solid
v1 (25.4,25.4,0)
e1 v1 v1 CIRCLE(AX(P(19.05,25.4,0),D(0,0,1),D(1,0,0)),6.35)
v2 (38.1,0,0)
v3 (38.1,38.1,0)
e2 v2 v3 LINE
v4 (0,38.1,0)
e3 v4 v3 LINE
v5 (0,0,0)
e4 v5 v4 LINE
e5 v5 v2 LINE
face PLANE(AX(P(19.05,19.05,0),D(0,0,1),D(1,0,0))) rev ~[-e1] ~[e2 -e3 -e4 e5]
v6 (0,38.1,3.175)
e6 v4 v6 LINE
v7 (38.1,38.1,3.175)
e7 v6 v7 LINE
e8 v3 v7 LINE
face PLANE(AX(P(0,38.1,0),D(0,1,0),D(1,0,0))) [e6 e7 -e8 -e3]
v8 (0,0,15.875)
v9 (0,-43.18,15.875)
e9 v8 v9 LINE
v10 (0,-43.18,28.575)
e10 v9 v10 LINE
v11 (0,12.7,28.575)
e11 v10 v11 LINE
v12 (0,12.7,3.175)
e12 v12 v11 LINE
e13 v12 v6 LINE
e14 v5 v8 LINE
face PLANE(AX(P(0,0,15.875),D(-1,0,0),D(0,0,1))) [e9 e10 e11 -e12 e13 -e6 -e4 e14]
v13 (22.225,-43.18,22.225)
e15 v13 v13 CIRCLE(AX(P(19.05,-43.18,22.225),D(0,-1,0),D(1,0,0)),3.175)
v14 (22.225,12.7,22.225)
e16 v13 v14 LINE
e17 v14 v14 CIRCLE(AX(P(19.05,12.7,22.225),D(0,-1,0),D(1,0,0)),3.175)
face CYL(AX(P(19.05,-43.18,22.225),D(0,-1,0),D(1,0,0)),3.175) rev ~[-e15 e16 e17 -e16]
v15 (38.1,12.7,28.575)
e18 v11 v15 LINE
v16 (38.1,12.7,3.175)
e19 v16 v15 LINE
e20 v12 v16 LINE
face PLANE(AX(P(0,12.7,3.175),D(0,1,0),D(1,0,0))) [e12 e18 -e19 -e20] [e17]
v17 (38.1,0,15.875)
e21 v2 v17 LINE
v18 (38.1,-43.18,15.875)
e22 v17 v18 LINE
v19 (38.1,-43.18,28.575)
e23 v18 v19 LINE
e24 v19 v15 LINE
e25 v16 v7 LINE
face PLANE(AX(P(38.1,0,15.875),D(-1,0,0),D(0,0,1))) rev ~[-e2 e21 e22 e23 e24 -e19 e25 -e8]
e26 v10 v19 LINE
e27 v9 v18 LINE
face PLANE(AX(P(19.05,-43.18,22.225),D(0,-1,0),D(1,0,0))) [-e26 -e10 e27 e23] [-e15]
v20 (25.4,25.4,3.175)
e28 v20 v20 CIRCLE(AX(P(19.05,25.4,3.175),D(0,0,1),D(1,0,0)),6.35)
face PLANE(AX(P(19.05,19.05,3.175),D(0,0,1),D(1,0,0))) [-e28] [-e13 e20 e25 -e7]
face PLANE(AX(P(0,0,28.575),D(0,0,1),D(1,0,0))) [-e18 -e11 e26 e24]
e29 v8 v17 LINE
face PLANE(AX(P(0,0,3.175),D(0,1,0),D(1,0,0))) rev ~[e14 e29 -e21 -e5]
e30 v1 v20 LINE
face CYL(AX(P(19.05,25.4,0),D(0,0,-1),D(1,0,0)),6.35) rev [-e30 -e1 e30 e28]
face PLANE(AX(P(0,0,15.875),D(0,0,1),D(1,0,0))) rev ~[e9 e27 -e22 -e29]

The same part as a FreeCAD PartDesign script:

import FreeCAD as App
import Part
import Sketcher
from FreeCAD import Vector
Q = App.Units.Quantity

doc = App.newDocument("Part")
params = doc.addObject("Spreadsheet::Sheet", "Params")
for row, (alias, value) in enumerate([
    ("sketch1_diameter", "0.5 in"),
    ("sketch1_width", "1.5 in"),
    ("pad1_length", "0.125 in"),
    ("sketch2_width", "1.5 in"),
    ("sketch2_height", "0.5 in"),
    ("pad2_length", "1 in"),
    ("sketch3_width", "1.5 in"),
    ("sketch3_height", "0.5 in"),
    ("pad3_length", "1.7 in"),
    ("sketch4_diameter", "0.25 in"),
], start=1):
    params.set(f"A{row}", alias)
    params.set(f"B{row}", "=" + value)
    params.setAlias(f"B{row}", alias)

body = doc.addObject("PartDesign::Body", "Body")

# Sketch on XY plane
sketch1 = doc.addObject("Sketcher::SketchObject", "Sketch")
body.addObject(sketch1)
sketch1.AttachmentSupport = (doc.XY_Plane, [""])
sketch1.MapMode = "FlatFace"
sketch1.addGeometry([
    Part.LineSegment(Vector(0, 38, 0), Vector(0, 0, 0)),  # 0
    Part.LineSegment(Vector(0, 0, 0), Vector(38, 0, 0)),  # 1
    Part.LineSegment(Vector(38, 0, 0), Vector(38, 38, 0)),  # 2
    Part.LineSegment(Vector(38, 38, 0), Vector(0, 38, 0)),  # 3
    Part.Circle(Vector(19, 25, 0), Vector(0, 0, 1), 6),  # 4
], False)
sketch1.addConstraint([
    Sketcher.Constraint("Coincident", 0, 2, 1, 1),
    Sketcher.Constraint("Coincident", 1, 2, 2, 1),
    Sketcher.Constraint("Coincident", 2, 2, 3, 1),
    Sketcher.Constraint("Coincident", 3, 2, 0, 1),
    Sketcher.Constraint("Vertical", 0),
    Sketcher.Constraint("Horizontal", 1),
    Sketcher.Constraint("Vertical", 2),
    Sketcher.Constraint("Horizontal", 3),
    Sketcher.Constraint("Coincident", 0, 2, -1, 1),
    Sketcher.Constraint("Equal", 3, 0),
    Sketcher.Constraint("Diameter", 4, Q("0.5 in")),
    Sketcher.Constraint("DistanceX", 1, 1, 1, 2, Q("1.5 in")),
    Sketcher.Constraint("DistanceY", -1, 1, 4, 3, Q("1 in")),
    Sketcher.Constraint("DistanceX", -1, 1, 4, 3, Q("0.75 in")),
])
sketch1.setExpression("Constraints[10]", "Params.sketch1_diameter")
sketch1.setExpression("Constraints[11]", "Params.sketch1_width")
pad1 = doc.addObject("PartDesign::Pad", "Pad")
body.addObject(pad1)
pad1.Profile = sketch1
pad1.setExpression("Length", "Params.pad1_length")

# Sketch on XY plane
sketch2 = doc.addObject("Sketcher::SketchObject", "Sketch001")
body.addObject(sketch2)
sketch2.AttachmentSupport = (doc.XY_Plane, [""])
sketch2.MapMode = "FlatFace"
sketch2.AttachmentOffset = App.Placement(Vector(0, 0, 0.125 * 25.4), App.Rotation())
sketch2.addGeometry([
    Part.LineSegment(Vector(0, 13, 0), Vector(0, 0, 0)),
    Part.LineSegment(Vector(0, 0, 0), Vector(38, 0, 0)),
    Part.LineSegment(Vector(38, 0, 0), Vector(38, 13, 0)),
    Part.LineSegment(Vector(38, 13, 0), Vector(0, 13, 0)),
], False)
sketch2.addConstraint([
    Sketcher.Constraint("Coincident", 0, 2, 1, 1),
    Sketcher.Constraint("Coincident", 1, 2, 2, 1),
    Sketcher.Constraint("Coincident", 2, 2, 3, 1),
    Sketcher.Constraint("Coincident", 3, 2, 0, 1),
    Sketcher.Constraint("Vertical", 0),
    Sketcher.Constraint("Horizontal", 1),
    Sketcher.Constraint("Vertical", 2),
    Sketcher.Constraint("Horizontal", 3),
    Sketcher.Constraint("Coincident", 0, 2, -1, 1),
    Sketcher.Constraint("DistanceX", 1, 1, 1, 2, Q("1.5 in")),
    Sketcher.Constraint("DistanceY", 0, 2, 0, 1, Q("0.5 in")),
])
sketch2.setExpression("Constraints[9]", "Params.sketch2_width")
sketch2.setExpression("Constraints[10]", "Params.sketch2_height")
pad2 = doc.addObject("PartDesign::Pad", "Pad001")
body.addObject(pad2)
pad2.Profile = sketch2
pad2.setExpression("Length", "Params.pad2_length")

# Sketch on XZ plane
sketch3 = doc.addObject("Sketcher::SketchObject", "Sketch002")
body.addObject(sketch3)
sketch3.AttachmentSupport = (doc.XZ_Plane, [""])
sketch3.MapMode = "FlatFace"
sketch3.addGeometry([
    Part.LineSegment(Vector(0, 29, 0), Vector(0, 16, 0)),
    Part.LineSegment(Vector(0, 16, 0), Vector(38, 16, 0)),
    Part.LineSegment(Vector(38, 16, 0), Vector(38, 29, 0)),
    Part.LineSegment(Vector(38, 29, 0), Vector(0, 29, 0)),
], False)
sketch3.addConstraint([
    Sketcher.Constraint("Coincident", 0, 2, 1, 1),
    Sketcher.Constraint("Coincident", 1, 2, 2, 1),
    Sketcher.Constraint("Coincident", 2, 2, 3, 1),
    Sketcher.Constraint("Coincident", 3, 2, 0, 1),
    Sketcher.Constraint("Vertical", 0),
    Sketcher.Constraint("Horizontal", 1),
    Sketcher.Constraint("Vertical", 2),
    Sketcher.Constraint("Horizontal", 3),
    Sketcher.Constraint("PointOnObject", 0, 2, -2),
    Sketcher.Constraint("DistanceX", 1, 1, 1, 2, Q("1.5 in")),
    Sketcher.Constraint("DistanceY", 0, 2, 0, 1, Q("0.5 in")),
    Sketcher.Constraint("DistanceY", -1, 1, 0, 2, Q("0.625 in")),
])
sketch3.setExpression("Constraints[9]", "Params.sketch3_width")
sketch3.setExpression("Constraints[10]", "Params.sketch3_height")
pad3 = doc.addObject("PartDesign::Pad", "Pad002")
body.addObject(pad3)
pad3.Profile = sketch3
pad3.setExpression("Length", "Params.pad3_length")

# Sketch on XZ plane
sketch4 = doc.addObject("Sketcher::SketchObject", "Sketch003")
body.addObject(sketch4)
sketch4.AttachmentSupport = (doc.XZ_Plane, [""])
sketch4.MapMode = "FlatFace"
sketch4.AttachmentOffset = App.Placement(Vector(0, 0, 1.7 * 25.4), App.Rotation())
sketch4.addGeometry(Part.Circle(Vector(19.1, 22.2, 0), Vector(0, 0, 1), 3.2), False)
sketch4.addConstraint([
    Sketcher.Constraint("Diameter", 0, Q("0.25 in")),
    Sketcher.Constraint("DistanceX", -1, 1, 0, 3, Q("0.75 in")),
    Sketcher.Constraint("DistanceY", -1, 1, 0, 3, Q("0.875 in")),
])
sketch4.setExpression("Constraints[0]", "Params.sketch4_diameter")
pocket1 = doc.addObject("PartDesign::Pocket", "Pocket")
body.addObject(pocket1)
pocket1.Profile = sketch4
pocket1.Type = "ThroughAll"

doc.recompute()
